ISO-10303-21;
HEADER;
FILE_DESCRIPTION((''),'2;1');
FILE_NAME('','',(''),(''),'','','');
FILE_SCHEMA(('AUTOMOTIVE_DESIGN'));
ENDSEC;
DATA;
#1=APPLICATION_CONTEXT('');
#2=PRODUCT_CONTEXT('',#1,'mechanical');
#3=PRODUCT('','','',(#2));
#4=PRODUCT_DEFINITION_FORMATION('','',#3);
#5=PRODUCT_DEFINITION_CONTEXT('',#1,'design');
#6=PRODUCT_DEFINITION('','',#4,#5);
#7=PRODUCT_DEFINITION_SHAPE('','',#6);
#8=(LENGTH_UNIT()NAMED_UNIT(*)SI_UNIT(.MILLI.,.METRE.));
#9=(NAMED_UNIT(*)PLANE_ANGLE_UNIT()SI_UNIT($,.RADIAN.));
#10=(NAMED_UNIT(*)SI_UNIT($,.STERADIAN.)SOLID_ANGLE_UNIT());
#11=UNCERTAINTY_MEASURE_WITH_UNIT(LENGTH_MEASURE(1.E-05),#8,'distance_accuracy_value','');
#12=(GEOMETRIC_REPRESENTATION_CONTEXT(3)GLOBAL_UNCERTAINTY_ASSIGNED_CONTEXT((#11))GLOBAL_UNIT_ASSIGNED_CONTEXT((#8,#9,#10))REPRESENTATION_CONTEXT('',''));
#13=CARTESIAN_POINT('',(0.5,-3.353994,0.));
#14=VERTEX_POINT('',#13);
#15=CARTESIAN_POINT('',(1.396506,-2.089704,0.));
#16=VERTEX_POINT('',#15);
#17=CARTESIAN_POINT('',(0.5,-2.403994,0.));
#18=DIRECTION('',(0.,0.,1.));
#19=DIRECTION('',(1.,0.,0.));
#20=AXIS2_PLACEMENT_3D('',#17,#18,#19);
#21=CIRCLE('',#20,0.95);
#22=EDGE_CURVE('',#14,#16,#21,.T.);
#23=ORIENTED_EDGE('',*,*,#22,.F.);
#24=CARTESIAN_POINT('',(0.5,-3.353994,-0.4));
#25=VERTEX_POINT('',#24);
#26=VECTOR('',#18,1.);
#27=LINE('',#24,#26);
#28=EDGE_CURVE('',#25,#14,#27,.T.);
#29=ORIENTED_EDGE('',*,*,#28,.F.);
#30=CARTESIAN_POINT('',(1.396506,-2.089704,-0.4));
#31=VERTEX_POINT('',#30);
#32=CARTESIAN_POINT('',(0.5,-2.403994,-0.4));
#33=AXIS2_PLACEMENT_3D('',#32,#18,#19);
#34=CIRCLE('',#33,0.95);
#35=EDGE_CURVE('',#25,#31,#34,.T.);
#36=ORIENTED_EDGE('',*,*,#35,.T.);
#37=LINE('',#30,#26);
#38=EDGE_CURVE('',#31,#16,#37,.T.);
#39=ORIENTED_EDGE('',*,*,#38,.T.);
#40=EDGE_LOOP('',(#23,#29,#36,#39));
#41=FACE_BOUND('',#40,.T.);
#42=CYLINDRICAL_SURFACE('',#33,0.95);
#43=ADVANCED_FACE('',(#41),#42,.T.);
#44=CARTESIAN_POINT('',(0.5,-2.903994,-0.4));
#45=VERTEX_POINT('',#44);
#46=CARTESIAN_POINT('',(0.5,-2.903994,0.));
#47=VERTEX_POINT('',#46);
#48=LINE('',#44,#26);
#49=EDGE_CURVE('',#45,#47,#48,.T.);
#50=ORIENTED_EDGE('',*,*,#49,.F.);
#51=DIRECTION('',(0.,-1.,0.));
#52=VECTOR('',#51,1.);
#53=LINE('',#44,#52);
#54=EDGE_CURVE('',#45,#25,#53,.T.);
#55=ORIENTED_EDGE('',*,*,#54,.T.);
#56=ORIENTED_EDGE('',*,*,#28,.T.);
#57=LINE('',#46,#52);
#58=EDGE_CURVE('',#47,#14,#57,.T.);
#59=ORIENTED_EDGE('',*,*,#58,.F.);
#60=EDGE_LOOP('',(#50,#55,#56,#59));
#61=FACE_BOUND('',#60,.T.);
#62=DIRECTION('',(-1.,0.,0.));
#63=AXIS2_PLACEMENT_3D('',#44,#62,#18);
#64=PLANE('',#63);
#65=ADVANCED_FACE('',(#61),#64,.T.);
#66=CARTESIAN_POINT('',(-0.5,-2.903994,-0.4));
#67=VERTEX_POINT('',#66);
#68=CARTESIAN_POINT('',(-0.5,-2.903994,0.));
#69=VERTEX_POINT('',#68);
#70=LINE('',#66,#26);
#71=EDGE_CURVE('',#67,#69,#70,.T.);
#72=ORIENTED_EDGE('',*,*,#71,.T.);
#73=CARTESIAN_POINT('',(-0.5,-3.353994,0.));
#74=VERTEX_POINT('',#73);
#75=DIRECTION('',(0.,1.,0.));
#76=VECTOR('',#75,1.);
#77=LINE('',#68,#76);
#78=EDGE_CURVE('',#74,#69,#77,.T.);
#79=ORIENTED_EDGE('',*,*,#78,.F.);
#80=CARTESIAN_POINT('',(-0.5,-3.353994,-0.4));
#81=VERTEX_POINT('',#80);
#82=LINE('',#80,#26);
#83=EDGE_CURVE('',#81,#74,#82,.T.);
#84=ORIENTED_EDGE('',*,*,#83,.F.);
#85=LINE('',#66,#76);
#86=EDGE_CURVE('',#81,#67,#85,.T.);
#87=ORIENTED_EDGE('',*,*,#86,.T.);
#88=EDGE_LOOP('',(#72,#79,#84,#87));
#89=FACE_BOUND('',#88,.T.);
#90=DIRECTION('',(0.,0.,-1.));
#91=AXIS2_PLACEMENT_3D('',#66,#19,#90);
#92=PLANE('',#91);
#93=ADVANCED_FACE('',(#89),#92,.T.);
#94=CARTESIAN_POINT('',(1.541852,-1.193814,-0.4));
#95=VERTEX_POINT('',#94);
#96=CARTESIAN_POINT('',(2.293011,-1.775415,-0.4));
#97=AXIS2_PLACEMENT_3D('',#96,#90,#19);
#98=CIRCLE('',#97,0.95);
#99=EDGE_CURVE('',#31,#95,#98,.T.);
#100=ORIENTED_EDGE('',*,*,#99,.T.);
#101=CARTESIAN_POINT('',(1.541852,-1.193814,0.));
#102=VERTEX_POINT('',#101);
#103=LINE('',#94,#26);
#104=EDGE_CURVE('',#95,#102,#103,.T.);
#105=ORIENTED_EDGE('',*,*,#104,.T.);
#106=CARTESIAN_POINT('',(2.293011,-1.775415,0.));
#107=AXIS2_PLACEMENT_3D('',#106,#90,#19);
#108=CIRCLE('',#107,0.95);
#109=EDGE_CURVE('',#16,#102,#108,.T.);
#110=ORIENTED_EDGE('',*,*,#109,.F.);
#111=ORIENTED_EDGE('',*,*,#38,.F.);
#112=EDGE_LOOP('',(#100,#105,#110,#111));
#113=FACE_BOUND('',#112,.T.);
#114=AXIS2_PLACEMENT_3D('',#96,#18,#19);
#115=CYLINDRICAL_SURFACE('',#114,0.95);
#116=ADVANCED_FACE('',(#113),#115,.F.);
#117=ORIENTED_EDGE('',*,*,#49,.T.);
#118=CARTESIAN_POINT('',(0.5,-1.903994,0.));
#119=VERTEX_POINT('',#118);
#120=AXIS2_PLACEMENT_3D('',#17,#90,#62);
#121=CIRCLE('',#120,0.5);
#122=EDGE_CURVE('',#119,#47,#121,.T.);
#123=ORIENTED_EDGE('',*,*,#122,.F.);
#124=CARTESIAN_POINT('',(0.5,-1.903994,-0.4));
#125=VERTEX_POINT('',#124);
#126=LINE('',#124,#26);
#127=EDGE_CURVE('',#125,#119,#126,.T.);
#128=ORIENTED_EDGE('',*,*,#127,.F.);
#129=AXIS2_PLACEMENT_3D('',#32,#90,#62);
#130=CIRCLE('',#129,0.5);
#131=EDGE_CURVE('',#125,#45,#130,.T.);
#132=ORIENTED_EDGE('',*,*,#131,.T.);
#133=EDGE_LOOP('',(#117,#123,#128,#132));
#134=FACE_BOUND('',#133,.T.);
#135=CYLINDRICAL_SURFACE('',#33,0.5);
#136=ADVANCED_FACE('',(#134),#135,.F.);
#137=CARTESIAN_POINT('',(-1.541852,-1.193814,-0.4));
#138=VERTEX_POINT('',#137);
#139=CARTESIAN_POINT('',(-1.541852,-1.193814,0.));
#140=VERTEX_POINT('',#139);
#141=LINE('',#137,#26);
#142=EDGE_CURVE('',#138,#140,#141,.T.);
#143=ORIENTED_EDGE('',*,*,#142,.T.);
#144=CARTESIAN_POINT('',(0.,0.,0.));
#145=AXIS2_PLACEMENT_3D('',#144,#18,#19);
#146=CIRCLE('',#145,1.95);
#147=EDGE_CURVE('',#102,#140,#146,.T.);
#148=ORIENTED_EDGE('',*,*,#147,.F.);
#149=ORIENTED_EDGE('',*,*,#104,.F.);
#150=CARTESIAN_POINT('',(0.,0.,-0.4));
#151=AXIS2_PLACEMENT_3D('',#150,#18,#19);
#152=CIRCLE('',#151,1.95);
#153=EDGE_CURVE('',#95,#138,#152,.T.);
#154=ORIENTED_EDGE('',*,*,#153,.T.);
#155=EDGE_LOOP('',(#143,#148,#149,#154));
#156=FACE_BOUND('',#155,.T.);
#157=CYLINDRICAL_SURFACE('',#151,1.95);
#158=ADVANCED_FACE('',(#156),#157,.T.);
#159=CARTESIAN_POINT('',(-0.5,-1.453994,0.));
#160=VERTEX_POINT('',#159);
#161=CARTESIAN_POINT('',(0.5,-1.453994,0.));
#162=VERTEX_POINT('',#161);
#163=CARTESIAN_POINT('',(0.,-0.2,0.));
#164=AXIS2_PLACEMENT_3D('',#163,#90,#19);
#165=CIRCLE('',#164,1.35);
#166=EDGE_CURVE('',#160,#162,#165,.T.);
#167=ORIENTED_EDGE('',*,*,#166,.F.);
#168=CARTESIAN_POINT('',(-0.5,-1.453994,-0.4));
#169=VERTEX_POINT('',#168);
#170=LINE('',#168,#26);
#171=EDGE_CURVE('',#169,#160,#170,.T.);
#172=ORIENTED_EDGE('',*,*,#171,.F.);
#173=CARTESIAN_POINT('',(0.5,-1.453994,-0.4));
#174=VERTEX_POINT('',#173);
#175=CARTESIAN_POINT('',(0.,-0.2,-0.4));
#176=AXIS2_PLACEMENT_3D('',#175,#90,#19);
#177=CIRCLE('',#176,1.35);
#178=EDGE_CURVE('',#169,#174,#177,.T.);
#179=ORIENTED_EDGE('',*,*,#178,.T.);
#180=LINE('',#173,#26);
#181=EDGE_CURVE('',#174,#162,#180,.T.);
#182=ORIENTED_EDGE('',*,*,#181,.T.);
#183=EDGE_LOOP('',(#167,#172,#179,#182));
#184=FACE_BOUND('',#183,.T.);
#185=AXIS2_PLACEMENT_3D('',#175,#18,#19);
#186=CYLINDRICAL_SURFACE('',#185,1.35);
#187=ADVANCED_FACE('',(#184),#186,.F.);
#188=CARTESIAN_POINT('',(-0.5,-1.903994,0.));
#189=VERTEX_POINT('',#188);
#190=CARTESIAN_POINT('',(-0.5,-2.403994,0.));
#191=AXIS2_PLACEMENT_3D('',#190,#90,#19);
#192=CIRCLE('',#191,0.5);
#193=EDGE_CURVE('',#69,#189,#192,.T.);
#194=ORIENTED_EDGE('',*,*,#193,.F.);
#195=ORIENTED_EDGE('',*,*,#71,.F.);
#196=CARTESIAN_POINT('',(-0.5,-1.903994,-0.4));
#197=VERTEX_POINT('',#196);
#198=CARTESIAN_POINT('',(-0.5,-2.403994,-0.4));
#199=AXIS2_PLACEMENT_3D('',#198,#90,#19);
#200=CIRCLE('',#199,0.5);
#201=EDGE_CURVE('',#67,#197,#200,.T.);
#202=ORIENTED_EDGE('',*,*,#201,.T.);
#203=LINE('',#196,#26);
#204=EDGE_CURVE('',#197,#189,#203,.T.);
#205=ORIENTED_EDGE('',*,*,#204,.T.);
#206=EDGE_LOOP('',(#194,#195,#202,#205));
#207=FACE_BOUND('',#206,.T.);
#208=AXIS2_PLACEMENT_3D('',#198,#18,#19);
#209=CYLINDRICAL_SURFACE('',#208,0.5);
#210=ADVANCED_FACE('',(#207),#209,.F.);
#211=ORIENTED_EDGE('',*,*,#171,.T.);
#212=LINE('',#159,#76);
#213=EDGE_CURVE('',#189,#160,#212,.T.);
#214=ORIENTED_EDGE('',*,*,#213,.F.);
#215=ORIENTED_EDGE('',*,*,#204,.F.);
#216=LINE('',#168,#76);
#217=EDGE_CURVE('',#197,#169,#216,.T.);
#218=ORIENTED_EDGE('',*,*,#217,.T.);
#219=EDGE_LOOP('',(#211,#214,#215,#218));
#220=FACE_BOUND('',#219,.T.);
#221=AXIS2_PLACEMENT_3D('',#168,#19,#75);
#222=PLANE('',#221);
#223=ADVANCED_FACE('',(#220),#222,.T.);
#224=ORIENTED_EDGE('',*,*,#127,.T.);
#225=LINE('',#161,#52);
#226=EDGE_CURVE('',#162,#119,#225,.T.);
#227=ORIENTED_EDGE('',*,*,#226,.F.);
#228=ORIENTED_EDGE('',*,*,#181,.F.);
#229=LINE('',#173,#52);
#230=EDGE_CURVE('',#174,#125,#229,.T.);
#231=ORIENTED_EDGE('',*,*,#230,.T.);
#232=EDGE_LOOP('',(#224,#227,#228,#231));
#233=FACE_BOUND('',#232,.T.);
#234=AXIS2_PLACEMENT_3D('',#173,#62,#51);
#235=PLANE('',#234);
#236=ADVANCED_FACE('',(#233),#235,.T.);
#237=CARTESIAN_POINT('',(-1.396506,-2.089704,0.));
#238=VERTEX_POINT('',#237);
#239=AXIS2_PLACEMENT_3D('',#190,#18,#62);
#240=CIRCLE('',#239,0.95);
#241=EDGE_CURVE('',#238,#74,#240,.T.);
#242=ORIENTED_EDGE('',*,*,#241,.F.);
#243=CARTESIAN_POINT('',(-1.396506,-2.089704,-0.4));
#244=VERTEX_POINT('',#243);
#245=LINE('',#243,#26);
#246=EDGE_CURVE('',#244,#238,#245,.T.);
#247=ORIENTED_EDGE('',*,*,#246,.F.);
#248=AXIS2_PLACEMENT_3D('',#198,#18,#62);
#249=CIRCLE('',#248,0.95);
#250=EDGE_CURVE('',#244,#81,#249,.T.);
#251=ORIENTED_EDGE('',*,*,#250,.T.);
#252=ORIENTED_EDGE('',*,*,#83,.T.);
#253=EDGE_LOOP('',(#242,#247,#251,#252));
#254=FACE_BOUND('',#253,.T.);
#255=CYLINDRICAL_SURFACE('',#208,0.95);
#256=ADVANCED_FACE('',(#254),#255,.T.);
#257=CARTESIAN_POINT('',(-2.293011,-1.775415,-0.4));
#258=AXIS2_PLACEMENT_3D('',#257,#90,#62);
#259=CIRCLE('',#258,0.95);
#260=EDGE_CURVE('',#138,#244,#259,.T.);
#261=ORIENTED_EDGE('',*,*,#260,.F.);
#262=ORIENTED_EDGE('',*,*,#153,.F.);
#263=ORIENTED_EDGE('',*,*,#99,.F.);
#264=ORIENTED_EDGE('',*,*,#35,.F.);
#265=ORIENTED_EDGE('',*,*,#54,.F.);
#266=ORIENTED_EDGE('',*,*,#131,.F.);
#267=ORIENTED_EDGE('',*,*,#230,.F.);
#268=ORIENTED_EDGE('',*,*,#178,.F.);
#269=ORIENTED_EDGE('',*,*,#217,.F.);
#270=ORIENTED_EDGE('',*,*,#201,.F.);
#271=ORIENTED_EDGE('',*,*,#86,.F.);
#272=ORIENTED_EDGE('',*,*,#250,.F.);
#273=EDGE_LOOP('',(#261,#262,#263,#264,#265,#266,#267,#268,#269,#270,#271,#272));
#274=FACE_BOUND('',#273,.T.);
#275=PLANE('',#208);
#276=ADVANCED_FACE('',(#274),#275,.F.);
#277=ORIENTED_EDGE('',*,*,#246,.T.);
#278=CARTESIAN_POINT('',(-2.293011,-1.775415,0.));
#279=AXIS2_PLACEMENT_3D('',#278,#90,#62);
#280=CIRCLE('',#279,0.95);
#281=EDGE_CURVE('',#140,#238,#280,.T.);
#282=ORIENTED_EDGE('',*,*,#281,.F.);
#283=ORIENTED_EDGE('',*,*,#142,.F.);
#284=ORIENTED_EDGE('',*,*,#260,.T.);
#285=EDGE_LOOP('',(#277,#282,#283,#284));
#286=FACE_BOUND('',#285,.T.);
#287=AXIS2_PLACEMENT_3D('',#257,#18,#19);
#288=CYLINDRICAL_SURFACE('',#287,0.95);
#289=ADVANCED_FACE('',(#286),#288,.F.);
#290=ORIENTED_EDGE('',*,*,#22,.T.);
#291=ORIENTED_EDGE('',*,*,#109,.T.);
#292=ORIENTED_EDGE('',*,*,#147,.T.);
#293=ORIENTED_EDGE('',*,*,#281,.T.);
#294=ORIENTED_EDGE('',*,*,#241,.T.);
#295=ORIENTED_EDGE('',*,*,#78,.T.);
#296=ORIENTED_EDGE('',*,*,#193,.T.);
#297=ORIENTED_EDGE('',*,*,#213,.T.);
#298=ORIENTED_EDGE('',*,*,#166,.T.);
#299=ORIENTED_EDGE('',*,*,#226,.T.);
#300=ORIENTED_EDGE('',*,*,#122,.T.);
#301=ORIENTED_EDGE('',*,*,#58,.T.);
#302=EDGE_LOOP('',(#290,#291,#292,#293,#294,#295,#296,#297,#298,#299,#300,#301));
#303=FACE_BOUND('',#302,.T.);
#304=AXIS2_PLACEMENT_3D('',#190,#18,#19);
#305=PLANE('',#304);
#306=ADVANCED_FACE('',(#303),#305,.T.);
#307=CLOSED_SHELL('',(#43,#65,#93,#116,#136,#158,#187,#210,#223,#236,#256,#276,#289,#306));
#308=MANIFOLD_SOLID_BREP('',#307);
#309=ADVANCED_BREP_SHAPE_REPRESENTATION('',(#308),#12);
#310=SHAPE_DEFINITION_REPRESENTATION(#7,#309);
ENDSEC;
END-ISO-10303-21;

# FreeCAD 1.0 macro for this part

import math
import FreeCAD as App
import Part
import Sketcher
from FreeCAD import Vector

doc = App.newDocument("Part")
body = doc.addObject("PartDesign::Body", "Body")

# Sketch on XY plane
sketch1 = doc.addObject("Sketcher::SketchObject", "Sketch")
body.addObject(sketch1)
sketch1.AttachmentSupport = (doc.XY_Plane, [""])
sketch1.MapMode = "FlatFace"
sketch1.addGeometry(Part.LineSegment(Vector(-0.5, -1.9, 0), Vector(-0.5, -1.45, 0)), False)
sketch1.addGeometry(Part.ArcOfCircle(Part.Circle(Vector(0, -0.2, 0), Vector(0, 0, 1), 1.35), math.radians(-68), math.radians(248)), False)
sketch1.addGeometry(Part.LineSegment(Vector(0.5, -1.45, 0), Vector(0.5, -1.9, 0)), False)
sketch1.addGeometry(Part.ArcOfCircle(Part.Circle(Vector(0.5, -2.4, 0), Vector(0, 0, 1), 0.5), math.radians(-90), math.radians(90)), False)
sketch1.addGeometry(Part.LineSegment(Vector(0.5, -2.9, 0), Vector(0.5, -3.35, 0)), False)
sketch1.addGeometry(Part.ArcOfCircle(Part.Circle(Vector(0.5, -2.4, 0), Vector(0, 0, 1), 0.95), math.radians(-90), math.radians(19)), False)
sketch1.addGeometry(Part.ArcOfCircle(Part.Circle(Vector(2.29, -1.78, 0), Vector(0, 0, 1), 0.95), math.radians(142), math.radians(199)), False)
sketch1.addGeometry(Part.ArcOfCircle(Part.Circle(Vector(0, 0, 0), Vector(0, 0, 1), 1.95), math.radians(-38), math.radians(218)), False)
sketch1.addGeometry(Part.ArcOfCircle(Part.Circle(Vector(-2.29, -1.78, 0), Vector(0, 0, 1), 0.95), math.radians(-19), math.radians(38)), False)
sketch1.addGeometry(Part.ArcOfCircle(Part.Circle(Vector(-0.5, -2.4, 0), Vector(0, 0, 1), 0.95), math.radians(161), math.radians(270)), False)
sketch1.addGeometry(Part.LineSegment(Vector(-0.5, -3.35, 0), Vector(-0.5, -2.9, 0)), False)
sketch1.addGeometry(Part.ArcOfCircle(Part.Circle(Vector(-0.5, -2.4, 0), Vector(0, 0, 1), 0.5), math.radians(90), math.radians(270)), False)
sketch1.addConstraint(Sketcher.Constraint("Coincident", 0, 2, 1, 2))
sketch1.addConstraint(Sketcher.Constraint("Coincident", 1, 1, 2, 1))
sketch1.addConstraint(Sketcher.Constraint("Coincident", 2, 2, 3, 2))
sketch1.addConstraint(Sketcher.Constraint("Coincident", 3, 1, 4, 1))
sketch1.addConstraint(Sketcher.Constraint("Coincident", 4, 2, 5, 1))
sketch1.addConstraint(Sketcher.Constraint("Tangent", 5, 2, 6, 2))
sketch1.addConstraint(Sketcher.Constraint("Tangent", 6, 1, 7, 1))
sketch1.addConstraint(Sketcher.Constraint("Tangent", 7, 2, 8, 2))
sketch1.addConstraint(Sketcher.Constraint("Tangent", 8, 1, 9, 1))
sketch1.addConstraint(Sketcher.Constraint("Coincident", 9, 2, 10, 1))
sketch1.addConstraint(Sketcher.Constraint("Coincident", 10, 2, 11, 2))
sketch1.addConstraint(Sketcher.Constraint("Coincident", 11, 1, 0, 1))
sketch1.addConstraint(Sketcher.Constraint("Vertical", 0))
sketch1.addConstraint(Sketcher.Constraint("Vertical", 2))
sketch1.addConstraint(Sketcher.Constraint("Vertical", 4))
sketch1.addConstraint(Sketcher.Constraint("Vertical", 10))
sketch1.addConstraint(Sketcher.Constraint("Coincident", 7, 3, -1, 1))
sketch1.addConstraint(Sketcher.Constraint("Coincident", 5, 3, 3, 3))
sketch1.addConstraint(Sketcher.Constraint("Coincident", 11, 3, 9, 3))
sketch1.addConstraint(Sketcher.Constraint("Equal", 5, 6))
sketch1.addConstraint(Sketcher.Constraint("Equal", 6, 8))
sketch1.addConstraint(Sketcher.Constraint("Equal", 8, 9))
sketch1.addConstraint(Sketcher.Constraint("Equal", 3, 11))
sketch1.addConstraint(Sketcher.Constraint("Symmetric", 3, 3, 9, 3, -2))
sketch1.addConstraint(Sketcher.Constraint("Symmetric", 0, 2, 1, 1, -2))
sketch1.addConstraint(Sketcher.Constraint("Vertical", 11, 3, 0, 2))
sketch1.addConstraint(Sketcher.Constraint("Vertical", 2, 2, 3, 1))
sketch1.addConstraint(Sketcher.Constraint("Vertical", 0, 2, 9, 2))
sketch1.addConstraint(Sketcher.Constraint("Equal", 2, 4))
sketch1.addConstraint(Sketcher.Constraint("Radius", 3, 0.5))
sketch1.addConstraint(Sketcher.Constraint("Radius", 1, 1.35))
sketch1.addConstraint(Sketcher.Constraint("Radius", 5, 0.95))
sketch1.addConstraint(Sketcher.Constraint("Radius", 7, 1.95))
sketch1.addConstraint(Sketcher.Constraint("DistanceX", 9, 3, 3, 3, 1.0))
sketch1.addConstraint(Sketcher.Constraint("DistanceY", 1, 3, -1, 1, 0.2))
pad1 = doc.addObject("PartDesign::Pad", "Pad")
body.addObject(pad1)
pad1.Profile = sketch1
pad1.Length = 0.4
pad1.Reversed = True

doc.recompute()
